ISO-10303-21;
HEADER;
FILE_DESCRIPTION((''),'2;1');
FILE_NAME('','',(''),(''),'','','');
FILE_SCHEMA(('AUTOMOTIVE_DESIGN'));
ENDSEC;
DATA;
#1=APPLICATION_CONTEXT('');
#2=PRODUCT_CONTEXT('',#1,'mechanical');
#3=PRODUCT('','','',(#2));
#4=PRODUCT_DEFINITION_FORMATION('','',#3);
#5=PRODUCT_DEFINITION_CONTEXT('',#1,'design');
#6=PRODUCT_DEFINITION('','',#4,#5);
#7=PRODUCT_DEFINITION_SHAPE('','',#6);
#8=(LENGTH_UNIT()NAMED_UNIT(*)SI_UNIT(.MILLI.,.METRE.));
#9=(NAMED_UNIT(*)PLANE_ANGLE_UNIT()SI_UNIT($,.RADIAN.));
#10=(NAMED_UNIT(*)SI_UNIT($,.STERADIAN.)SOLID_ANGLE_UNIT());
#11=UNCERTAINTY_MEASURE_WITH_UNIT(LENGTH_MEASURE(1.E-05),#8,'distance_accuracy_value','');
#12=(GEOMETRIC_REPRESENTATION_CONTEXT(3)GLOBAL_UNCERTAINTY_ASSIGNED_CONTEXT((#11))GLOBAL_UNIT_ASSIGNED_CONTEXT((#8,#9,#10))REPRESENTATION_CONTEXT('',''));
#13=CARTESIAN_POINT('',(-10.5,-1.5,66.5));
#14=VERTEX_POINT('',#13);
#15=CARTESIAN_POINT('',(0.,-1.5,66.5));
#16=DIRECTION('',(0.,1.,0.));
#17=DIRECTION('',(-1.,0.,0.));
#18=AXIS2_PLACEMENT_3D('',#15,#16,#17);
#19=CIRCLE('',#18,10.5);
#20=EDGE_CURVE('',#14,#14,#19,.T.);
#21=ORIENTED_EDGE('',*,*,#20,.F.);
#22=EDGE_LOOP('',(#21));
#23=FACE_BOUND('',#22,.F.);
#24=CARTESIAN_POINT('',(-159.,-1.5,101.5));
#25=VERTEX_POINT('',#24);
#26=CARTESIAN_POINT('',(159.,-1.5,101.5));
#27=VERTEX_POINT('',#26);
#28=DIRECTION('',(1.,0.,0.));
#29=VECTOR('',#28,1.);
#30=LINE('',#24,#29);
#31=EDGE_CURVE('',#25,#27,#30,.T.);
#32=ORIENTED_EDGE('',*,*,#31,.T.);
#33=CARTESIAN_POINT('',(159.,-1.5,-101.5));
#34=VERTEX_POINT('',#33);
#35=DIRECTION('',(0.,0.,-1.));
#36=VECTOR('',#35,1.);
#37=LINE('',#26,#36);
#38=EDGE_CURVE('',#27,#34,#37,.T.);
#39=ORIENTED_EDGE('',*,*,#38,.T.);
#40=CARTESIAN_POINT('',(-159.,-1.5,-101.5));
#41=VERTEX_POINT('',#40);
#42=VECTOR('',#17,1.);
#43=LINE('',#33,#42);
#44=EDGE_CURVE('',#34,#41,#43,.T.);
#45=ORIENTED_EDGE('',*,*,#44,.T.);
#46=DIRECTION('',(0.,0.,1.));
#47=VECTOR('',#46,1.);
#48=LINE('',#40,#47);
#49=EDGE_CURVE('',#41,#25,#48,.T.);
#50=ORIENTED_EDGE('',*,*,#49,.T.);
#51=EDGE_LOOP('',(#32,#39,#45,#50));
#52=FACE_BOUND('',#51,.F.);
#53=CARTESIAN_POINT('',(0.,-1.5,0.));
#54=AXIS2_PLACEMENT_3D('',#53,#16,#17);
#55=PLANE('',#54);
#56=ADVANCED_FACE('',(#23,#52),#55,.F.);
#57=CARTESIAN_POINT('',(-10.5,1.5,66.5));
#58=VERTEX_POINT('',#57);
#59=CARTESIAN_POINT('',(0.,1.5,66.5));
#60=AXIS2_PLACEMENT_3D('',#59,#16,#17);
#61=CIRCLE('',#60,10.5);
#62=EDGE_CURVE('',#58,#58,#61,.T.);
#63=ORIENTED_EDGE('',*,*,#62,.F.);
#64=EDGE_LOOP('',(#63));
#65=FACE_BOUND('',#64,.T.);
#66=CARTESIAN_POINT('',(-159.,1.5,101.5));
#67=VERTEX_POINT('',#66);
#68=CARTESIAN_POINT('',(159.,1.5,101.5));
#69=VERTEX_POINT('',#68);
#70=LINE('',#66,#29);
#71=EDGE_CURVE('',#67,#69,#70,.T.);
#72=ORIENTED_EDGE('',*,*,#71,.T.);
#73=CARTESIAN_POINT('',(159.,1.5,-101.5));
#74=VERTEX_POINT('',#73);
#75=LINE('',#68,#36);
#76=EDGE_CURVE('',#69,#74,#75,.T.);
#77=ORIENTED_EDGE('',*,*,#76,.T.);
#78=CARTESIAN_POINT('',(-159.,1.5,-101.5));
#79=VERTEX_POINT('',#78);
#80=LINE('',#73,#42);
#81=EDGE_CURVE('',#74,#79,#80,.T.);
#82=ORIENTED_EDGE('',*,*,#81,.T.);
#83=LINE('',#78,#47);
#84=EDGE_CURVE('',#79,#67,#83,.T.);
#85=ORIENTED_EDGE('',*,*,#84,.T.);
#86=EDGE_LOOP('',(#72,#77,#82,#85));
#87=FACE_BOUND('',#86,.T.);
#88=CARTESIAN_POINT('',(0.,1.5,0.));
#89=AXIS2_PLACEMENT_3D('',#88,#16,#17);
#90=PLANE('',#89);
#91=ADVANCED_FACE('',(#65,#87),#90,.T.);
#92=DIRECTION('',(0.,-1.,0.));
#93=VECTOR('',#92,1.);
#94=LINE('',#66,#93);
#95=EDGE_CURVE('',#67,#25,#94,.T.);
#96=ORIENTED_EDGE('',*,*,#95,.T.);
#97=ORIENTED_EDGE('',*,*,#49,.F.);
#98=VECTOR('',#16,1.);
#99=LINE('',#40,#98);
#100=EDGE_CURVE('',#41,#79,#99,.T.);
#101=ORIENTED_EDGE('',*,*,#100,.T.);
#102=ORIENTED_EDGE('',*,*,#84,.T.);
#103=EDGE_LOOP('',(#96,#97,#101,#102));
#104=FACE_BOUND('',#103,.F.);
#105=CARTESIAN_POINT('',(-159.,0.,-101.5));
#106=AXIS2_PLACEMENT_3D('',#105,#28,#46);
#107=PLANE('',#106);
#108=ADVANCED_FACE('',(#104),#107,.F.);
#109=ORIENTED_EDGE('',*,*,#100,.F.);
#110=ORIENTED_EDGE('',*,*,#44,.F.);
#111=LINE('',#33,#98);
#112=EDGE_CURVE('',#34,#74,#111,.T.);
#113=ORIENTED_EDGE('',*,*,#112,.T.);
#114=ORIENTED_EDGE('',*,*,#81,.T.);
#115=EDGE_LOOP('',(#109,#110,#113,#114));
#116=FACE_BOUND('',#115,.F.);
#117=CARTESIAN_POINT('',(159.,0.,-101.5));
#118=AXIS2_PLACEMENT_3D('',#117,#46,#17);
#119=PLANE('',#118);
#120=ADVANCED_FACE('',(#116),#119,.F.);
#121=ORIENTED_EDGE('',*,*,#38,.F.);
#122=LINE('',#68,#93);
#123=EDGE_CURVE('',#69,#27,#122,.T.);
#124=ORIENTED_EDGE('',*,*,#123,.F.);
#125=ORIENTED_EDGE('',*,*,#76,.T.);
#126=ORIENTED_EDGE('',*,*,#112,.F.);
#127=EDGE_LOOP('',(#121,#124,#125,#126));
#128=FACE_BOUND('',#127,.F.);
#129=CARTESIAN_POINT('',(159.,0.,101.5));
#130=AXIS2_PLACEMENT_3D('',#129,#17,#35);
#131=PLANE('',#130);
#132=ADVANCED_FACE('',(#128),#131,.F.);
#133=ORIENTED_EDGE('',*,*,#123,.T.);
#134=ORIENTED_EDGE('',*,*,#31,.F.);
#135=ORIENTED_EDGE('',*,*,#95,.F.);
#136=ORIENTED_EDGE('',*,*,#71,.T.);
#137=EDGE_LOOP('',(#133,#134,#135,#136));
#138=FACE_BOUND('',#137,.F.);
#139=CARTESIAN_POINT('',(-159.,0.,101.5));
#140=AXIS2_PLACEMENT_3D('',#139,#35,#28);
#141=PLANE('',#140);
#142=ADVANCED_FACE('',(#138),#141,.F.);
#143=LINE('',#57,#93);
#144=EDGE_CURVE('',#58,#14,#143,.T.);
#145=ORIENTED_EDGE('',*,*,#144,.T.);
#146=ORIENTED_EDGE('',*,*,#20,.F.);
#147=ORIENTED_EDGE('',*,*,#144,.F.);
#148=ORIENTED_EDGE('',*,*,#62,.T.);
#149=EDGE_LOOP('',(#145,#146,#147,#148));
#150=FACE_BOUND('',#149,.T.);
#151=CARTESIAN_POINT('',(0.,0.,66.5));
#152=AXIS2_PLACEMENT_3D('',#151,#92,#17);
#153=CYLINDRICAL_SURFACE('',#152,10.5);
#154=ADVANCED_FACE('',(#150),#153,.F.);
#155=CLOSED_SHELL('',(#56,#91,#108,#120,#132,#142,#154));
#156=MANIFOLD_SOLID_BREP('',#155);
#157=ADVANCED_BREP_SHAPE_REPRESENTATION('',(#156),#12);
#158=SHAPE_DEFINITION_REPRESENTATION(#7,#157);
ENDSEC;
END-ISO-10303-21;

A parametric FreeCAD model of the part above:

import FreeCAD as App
import Part
import Sketcher
from FreeCAD import Vector

doc = App.newDocument("Part")
body = doc.addObject("PartDesign::Body", "Body")

sketch1 = doc.addObject("Sketcher::SketchObject", "Sketch")
body.addObject(sketch1)
sketch1.AttachmentSupport = (doc.XZ_Plane, [""])
sketch1.MapMode = "FlatFace"
sketch1.addGeometry(Part.LineSegment(Vector(159, 101.5, 0), Vector(159, -101.5, 0)), False)
sketch1.addGeometry(Part.LineSegment(Vector(159, -101.5, 0), Vector(-159, -101.5, 0)), False)
sketch1.addGeometry(Part.LineSegment(Vector(-159, -101.5, 0), Vector(-159, 101.5, 0)), False)
sketch1.addGeometry(Part.LineSegment(Vector(-159, 101.5, 0), Vector(159, 101.5, 0)), False)
sketch1.addGeometry(Part.Circle(Vector(0, 66.5, 0), Vector(0, 0, 1), 10.5), False)
sketch1.addConstraint(Sketcher.Constraint("Coincident", 0, 2, 1, 1))
sketch1.addConstraint(Sketcher.Constraint("Coincident", 1, 2, 2, 1))
sketch1.addConstraint(Sketcher.Constraint("Coincident", 2, 2, 3, 1))
sketch1.addConstraint(Sketcher.Constraint("Coincident", 3, 2, 0, 1))
sketch1.addConstraint(Sketcher.Constraint("Vertical", 0))
sketch1.addConstraint(Sketcher.Constraint("Horizontal", 1))
sketch1.addConstraint(Sketcher.Constraint("Vertical", 2))
sketch1.addConstraint(Sketcher.Constraint("Horizontal", 3))
sketch1.addConstraint(Sketcher.Constraint("Symmetric", 0, 2, 2, 2, -1, 1))
sketch1.addConstraint(Sketcher.Constraint("PointOnObject", 4, 3, -2))
sketch1.addConstraint(Sketcher.Constraint("Diameter", 4, 21.0))
sketch1.addConstraint(Sketcher.Constraint("DistanceX", 1, 2, 1, 1, 318.0))
sketch1.addConstraint(Sketcher.Constraint("DistanceY", 0, 2, 0, 1, 203.0))
sketch1.addConstraint(Sketcher.Constraint("DistanceY", 4, 3, 2, 2, 35.0))
pad1 = doc.addObject("PartDesign::Pad", "Pad")
body.addObject(pad1)
pad1.Profile = sketch1
pad1.Length = 3
pad1.Midplane = True

doc.recompute()
